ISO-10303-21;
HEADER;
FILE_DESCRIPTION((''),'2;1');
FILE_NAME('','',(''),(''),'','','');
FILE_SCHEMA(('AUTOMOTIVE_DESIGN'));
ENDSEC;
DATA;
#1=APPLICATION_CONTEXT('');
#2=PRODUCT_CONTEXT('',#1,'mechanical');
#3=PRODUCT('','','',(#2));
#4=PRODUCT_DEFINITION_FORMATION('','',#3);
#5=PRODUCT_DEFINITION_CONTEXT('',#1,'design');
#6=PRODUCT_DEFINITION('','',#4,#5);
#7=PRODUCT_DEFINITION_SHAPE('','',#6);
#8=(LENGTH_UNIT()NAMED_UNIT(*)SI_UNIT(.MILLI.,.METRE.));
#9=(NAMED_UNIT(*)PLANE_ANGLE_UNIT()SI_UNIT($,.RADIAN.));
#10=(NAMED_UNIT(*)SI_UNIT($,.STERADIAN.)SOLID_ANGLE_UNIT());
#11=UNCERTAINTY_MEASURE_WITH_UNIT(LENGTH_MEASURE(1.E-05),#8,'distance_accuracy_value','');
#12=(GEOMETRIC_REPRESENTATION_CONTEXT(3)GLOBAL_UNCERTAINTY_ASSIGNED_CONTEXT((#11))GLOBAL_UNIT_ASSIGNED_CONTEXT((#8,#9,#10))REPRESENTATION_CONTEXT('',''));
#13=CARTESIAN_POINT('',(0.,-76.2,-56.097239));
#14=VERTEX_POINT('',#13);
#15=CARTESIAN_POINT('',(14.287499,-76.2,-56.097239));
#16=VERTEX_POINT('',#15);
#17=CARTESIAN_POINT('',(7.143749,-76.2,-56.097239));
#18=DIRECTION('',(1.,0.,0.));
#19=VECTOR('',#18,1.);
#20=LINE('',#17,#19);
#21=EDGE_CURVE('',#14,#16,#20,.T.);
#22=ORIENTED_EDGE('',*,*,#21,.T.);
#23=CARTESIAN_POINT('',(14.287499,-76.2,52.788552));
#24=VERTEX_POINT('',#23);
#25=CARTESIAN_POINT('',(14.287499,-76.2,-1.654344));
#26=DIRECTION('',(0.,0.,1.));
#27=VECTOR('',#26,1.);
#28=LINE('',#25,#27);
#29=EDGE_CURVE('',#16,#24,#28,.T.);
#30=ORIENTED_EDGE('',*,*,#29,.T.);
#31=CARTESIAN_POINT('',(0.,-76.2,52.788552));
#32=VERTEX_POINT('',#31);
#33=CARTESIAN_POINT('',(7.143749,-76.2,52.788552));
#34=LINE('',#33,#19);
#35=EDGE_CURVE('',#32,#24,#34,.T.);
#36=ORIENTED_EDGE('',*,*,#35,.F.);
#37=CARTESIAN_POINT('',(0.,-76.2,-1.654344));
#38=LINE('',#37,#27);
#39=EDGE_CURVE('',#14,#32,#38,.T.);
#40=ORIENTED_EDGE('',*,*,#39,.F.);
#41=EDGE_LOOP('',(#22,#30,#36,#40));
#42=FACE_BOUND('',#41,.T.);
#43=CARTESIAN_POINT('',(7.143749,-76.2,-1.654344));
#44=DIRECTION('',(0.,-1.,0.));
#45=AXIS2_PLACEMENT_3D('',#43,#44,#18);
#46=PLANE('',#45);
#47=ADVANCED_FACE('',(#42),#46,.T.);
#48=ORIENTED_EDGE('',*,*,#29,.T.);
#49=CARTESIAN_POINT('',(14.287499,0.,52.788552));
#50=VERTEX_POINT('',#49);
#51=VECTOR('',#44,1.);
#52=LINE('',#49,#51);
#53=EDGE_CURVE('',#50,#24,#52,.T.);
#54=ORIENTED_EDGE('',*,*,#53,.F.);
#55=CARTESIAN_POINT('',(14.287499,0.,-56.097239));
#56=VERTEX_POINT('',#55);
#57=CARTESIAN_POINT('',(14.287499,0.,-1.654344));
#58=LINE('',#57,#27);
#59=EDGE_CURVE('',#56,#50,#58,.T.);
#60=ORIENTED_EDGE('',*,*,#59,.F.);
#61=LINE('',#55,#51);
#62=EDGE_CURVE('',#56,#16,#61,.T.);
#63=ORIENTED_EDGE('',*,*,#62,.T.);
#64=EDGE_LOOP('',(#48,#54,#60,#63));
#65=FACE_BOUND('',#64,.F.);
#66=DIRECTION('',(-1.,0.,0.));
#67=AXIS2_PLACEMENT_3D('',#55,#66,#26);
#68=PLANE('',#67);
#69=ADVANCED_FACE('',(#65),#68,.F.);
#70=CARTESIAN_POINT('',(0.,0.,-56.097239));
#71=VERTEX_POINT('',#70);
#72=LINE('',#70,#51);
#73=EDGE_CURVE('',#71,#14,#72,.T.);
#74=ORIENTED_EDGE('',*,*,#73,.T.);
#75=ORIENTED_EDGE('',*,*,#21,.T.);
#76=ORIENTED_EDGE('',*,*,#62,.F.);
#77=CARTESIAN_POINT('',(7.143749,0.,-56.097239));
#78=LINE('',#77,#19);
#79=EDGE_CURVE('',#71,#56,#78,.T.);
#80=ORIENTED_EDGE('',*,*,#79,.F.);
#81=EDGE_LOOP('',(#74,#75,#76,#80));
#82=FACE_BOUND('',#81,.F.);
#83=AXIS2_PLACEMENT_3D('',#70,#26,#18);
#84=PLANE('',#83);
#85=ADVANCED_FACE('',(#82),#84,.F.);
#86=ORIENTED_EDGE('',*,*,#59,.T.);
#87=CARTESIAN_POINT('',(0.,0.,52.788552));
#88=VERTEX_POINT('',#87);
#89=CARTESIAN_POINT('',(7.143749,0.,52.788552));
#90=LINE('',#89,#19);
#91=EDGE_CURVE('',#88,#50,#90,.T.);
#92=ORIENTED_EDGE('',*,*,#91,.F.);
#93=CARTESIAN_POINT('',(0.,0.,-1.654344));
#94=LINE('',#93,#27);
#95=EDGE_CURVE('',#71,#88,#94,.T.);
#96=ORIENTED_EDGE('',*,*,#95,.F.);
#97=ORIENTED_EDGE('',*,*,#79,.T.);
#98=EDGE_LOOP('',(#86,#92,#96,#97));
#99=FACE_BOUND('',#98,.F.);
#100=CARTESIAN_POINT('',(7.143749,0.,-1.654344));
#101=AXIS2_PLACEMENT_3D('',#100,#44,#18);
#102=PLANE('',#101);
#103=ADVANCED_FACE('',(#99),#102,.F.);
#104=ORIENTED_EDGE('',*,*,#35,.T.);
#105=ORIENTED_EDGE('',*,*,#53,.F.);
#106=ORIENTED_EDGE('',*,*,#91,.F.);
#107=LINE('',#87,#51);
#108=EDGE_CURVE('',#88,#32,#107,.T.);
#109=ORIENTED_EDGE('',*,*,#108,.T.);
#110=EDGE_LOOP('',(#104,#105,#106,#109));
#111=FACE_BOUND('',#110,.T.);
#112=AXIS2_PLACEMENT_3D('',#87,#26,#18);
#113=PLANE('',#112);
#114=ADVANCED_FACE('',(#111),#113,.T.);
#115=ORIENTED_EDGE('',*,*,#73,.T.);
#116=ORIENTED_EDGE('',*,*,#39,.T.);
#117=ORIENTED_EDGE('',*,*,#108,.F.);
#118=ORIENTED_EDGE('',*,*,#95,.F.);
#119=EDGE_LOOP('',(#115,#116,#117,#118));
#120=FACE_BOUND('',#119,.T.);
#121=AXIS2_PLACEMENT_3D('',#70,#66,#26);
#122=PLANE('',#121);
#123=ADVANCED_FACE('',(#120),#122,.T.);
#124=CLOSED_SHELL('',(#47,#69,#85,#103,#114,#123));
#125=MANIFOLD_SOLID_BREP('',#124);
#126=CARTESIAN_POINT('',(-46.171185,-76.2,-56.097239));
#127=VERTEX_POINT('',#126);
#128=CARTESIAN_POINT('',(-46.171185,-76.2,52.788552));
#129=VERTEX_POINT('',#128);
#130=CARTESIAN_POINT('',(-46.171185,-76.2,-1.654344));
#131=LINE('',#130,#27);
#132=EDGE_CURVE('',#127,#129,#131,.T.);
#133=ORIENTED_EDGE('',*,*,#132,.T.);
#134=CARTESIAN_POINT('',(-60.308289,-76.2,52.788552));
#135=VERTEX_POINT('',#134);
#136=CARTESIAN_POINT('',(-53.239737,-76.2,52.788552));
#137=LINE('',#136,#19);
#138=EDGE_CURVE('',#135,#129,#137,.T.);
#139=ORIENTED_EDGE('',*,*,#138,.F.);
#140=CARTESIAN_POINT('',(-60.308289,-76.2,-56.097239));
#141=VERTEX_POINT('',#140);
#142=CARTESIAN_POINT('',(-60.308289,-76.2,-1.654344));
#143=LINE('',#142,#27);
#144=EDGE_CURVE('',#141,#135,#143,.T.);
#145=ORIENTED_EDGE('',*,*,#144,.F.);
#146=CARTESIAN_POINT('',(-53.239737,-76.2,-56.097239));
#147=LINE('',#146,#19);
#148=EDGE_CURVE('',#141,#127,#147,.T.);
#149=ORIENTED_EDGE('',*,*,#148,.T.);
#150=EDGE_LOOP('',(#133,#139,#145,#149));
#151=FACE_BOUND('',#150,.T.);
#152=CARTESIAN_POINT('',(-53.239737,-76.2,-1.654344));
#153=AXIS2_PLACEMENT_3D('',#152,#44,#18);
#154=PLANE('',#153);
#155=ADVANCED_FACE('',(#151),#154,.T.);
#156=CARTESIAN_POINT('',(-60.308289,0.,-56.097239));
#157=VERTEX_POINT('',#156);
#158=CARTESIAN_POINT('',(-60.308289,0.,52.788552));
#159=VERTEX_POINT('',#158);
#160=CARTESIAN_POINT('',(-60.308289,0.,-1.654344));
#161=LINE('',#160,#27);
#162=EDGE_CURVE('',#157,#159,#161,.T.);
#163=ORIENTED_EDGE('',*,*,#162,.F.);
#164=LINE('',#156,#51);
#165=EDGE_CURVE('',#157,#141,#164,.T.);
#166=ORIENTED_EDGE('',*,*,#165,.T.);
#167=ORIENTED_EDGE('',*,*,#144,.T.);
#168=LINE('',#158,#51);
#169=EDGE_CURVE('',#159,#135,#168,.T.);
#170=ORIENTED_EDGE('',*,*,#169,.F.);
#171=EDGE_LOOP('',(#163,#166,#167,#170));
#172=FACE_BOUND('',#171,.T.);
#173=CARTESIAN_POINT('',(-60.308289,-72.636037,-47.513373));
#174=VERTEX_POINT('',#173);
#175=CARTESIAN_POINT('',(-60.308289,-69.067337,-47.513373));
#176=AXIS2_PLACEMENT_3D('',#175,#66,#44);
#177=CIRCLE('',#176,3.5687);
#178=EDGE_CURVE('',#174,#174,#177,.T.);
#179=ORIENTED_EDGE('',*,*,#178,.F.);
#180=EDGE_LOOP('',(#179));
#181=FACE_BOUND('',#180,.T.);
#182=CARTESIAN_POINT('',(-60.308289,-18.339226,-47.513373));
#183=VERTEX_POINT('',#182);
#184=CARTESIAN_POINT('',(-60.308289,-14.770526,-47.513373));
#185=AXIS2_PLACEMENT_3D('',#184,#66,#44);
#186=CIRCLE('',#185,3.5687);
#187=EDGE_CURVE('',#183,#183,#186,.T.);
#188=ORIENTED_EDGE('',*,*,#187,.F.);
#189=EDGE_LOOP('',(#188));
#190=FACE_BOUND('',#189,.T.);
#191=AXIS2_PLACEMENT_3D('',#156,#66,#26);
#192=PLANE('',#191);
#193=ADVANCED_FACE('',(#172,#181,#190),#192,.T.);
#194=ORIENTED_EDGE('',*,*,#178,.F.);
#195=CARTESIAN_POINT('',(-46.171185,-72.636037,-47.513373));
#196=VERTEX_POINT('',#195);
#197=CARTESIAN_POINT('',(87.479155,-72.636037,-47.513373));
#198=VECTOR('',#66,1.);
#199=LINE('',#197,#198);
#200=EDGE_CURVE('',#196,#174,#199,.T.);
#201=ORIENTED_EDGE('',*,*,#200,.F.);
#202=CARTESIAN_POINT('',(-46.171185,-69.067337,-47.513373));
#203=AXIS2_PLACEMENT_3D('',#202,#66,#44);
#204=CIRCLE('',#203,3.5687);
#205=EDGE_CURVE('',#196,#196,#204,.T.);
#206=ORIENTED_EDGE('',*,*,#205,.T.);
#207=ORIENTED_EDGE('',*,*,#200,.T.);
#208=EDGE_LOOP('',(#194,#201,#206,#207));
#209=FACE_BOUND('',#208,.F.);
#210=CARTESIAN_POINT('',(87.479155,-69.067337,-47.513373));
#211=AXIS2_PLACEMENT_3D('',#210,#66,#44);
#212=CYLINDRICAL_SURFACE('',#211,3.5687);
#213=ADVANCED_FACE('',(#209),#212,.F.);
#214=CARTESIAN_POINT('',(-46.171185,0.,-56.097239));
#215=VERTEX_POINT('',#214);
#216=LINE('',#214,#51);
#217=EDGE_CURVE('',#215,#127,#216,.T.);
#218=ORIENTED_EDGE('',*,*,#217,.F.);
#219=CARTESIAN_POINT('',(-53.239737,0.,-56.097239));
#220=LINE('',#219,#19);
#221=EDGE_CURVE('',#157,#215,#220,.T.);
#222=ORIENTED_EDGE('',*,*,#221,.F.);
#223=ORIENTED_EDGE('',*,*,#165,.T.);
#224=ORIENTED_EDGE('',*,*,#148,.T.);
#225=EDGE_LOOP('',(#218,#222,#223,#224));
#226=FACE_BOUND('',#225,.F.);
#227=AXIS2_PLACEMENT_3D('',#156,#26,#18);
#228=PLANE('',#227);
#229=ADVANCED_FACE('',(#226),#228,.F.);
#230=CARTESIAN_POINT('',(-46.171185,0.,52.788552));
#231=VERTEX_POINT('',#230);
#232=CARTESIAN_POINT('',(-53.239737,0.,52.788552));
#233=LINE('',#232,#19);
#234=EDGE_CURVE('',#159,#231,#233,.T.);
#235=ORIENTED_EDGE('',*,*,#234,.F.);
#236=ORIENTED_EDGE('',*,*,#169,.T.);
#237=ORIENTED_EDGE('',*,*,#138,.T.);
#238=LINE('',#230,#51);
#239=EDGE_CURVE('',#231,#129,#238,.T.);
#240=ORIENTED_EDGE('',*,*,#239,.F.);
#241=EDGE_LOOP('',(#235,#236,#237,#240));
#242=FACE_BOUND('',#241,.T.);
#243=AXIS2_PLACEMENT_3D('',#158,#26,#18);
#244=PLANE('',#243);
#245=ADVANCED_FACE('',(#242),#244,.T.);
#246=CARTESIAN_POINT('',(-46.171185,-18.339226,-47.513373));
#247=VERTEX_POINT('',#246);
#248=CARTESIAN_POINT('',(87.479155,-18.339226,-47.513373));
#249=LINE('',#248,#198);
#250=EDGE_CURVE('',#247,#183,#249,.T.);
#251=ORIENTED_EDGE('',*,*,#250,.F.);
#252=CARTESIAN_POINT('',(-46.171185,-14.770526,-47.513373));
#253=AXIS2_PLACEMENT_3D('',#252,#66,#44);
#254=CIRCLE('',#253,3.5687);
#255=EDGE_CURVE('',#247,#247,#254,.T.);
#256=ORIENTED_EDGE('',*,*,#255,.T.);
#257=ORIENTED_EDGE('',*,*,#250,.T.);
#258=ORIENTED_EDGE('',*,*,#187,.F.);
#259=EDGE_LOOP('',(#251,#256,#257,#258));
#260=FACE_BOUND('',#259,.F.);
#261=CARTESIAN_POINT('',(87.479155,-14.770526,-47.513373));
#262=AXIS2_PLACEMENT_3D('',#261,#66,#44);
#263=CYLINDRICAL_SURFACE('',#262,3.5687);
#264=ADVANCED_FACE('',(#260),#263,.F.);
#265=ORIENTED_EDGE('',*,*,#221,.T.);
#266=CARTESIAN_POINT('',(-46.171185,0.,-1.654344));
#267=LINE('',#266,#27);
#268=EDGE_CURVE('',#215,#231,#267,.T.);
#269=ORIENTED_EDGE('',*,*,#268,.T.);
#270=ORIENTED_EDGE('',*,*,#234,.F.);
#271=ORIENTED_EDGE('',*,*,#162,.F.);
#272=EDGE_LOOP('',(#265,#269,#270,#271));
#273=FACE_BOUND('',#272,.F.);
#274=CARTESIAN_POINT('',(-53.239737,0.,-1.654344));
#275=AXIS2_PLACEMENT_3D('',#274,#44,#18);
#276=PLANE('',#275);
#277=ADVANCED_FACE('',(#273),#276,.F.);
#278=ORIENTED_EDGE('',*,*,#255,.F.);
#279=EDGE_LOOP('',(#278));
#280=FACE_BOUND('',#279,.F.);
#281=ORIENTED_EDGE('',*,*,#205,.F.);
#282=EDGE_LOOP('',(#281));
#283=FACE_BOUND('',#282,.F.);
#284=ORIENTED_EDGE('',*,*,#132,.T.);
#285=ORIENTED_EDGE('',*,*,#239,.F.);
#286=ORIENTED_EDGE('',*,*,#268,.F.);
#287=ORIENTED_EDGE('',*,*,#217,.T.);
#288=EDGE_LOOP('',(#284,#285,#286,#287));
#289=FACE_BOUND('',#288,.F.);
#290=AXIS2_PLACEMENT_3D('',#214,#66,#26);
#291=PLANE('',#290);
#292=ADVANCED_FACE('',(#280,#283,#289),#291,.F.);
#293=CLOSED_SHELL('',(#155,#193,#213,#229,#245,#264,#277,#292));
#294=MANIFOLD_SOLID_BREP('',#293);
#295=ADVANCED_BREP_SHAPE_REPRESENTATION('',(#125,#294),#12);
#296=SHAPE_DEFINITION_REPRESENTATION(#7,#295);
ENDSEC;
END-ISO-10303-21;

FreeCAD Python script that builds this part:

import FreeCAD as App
import Part
import Sketcher
Q = App.Units.Quantity

doc = App.newDocument("Part")
body = doc.addObject("PartDesign::Body", "Body")

sketch1 = body.newObject("Sketcher::SketchObject", "Sketch")
sketch1.AttachmentSupport = (doc.getObject("XZ_Plane"), [""])
sketch1.MapMode = "FlatFace"
sketch1.addGeometry(Part.LineSegment(App.Vector(-60.308289, 52.788552, 0), App.Vector(-60.308289, -56.097239, 0)), False)
sketch1.addGeometry(Part.LineSegment(App.Vector(-60.308289, -56.097239, 0), App.Vector(-46.171185, -56.097239, 0)), False)
sketch1.addGeometry(Part.LineSegment(App.Vector(-46.171185, -56.097239, 0), App.Vector(-46.171185, 52.788552, 0)), False)
sketch1.addGeometry(Part.LineSegment(App.Vector(-46.171185, 52.788552, 0), App.Vector(-60.308289, 52.788552, 0)), False)
sketch1.addConstraint(Sketcher.Constraint("Coincident", 0, 2, 1, 1))
sketch1.addConstraint(Sketcher.Constraint("Coincident", 1, 2, 2, 1))
sketch1.addConstraint(Sketcher.Constraint("Coincident", 2, 2, 3, 1))
sketch1.addConstraint(Sketcher.Constraint("Coincident", 3, 2, 0, 1))
sketch1.addConstraint(Sketcher.Constraint("Vertical", 0))
sketch1.addConstraint(Sketcher.Constraint("Horizontal", 1))
sketch1.addConstraint(Sketcher.Constraint("Vertical", 2))
sketch1.addConstraint(Sketcher.Constraint("Horizontal", 3))
sketch1.addConstraint(Sketcher.Constraint("DistanceY", 0, 2, 0, 1, Q("108.885791 mm")))
sketch1.addConstraint(Sketcher.Constraint("DistanceX", 1, 1, 1, 2, Q("14.137104 mm")))
sketch1.addConstraint(Sketcher.Constraint("DistanceX", 0, 2, -1, 1, Q("60.308289 mm")))
sketch1.addConstraint(Sketcher.Constraint("DistanceY", 0, 2, -1, 1, Q("56.097239 mm")))
pad1 = body.newObject("PartDesign::Pad", "Pad")
pad1.Profile = sketch1
pad1.Length = Q("3 in")

sketch2 = body.newObject("Sketcher::SketchObject", "Sketch001")
sketch2.AttachmentSupport = (doc.getObject("YZ_Plane"), [""])
sketch2.MapMode = "FlatFace"
sketch2.AttachmentOffset = App.Placement(App.Vector(0, 0, -46.171185), App.Rotation())
sketch2.addGeometry(Part.Circle(App.Vector(-69.067337, -47.513373, 0), App.Vector(0, 0, 1), 3.5687), False)
sketch2.addGeometry(Part.Circle(App.Vector(-14.770526, -47.513373, 0), App.Vector(0, 0, 1), 3.5687), False)
sketch2.addConstraint(Sketcher.Constraint("Equal", 0, 1))
sketch2.addConstraint(Sketcher.Constraint("Horizontal", 0, 3, 1, 3))
sketch2.addConstraint(Sketcher.Constraint("Diameter", 0, Q("0.281 in")))
sketch2.addConstraint(Sketcher.Constraint("DistanceX", 0, 3, 1, 3, Q("54.29681 mm")))
sketch2.addConstraint(Sketcher.Constraint("DistanceX", 0, 3, -1, 1, Q("69.067337 mm")))
sketch2.addConstraint(Sketcher.Constraint("DistanceY", 0, 3, -1, 1, Q("47.513373 mm")))
doc.recompute()
hole = body.newObject("PartDesign::Hole", "Hole")
hole.Profile = sketch2
hole.ThreadType = "None"
hole.Diameter = Q("0.281 in")
hole.DepthType = "ThroughAll"
body2 = doc.addObject("PartDesign::Body", "Body001")

sketch3 = body2.newObject("Sketcher::SketchObject", "Sketch002")
sketch3.AttachmentSupport = (doc.getObject("XZ_Plane001"), [""])
sketch3.MapMode = "FlatFace"
sketch3.addGeometry(Part.LineSegment(App.Vector(0, 52.788552, 0), App.Vector(0, -56.097239, 0)), False)
sketch3.addGeometry(Part.LineSegment(App.Vector(0, -56.097239, 0), App.Vector(14.287499, -56.097239, 0)), False)
sketch3.addGeometry(Part.LineSegment(App.Vector(14.287499, -56.097239, 0), App.Vector(14.287499, 52.788552, 0)), False)
sketch3.addGeometry(Part.LineSegment(App.Vector(14.287499, 52.788552, 0), App.Vector(0, 52.788552, 0)), False)
sketch3.addConstraint(Sketcher.Constraint("Coincident", 0, 2, 1, 1))
sketch3.addConstraint(Sketcher.Constraint("Coincident", 1, 2, 2, 1))
sketch3.addConstraint(Sketcher.Constraint("Coincident", 2, 2, 3, 1))
sketch3.addConstraint(Sketcher.Constraint("Coincident", 3, 2, 0, 1))
sketch3.addConstraint(Sketcher.Constraint("Vertical", 0))
sketch3.addConstraint(Sketcher.Constraint("Horizontal", 1))
sketch3.addConstraint(Sketcher.Constraint("Vertical", 2))
sketch3.addConstraint(Sketcher.Constraint("Horizontal", 3))
sketch3.addConstraint(Sketcher.Constraint("PointOnObject", 0, 2, -2))
sketch3.addConstraint(Sketcher.Constraint("DistanceX", 1, 1, 1, 2, Q("0.5625 in")))
sketch3.addConstraint(Sketcher.Constraint("DistanceY", 0, 2, 0, 1, Q("108.885791 mm")))
sketch3.addConstraint(Sketcher.Constraint("DistanceY", 0, 2, -1, 1, Q("56.097239 mm")))
pad2 = body2.newObject("PartDesign::Pad", "Pad001")
pad2.Profile = sketch3
pad2.Length = Q("3 in")

doc.recompute()
